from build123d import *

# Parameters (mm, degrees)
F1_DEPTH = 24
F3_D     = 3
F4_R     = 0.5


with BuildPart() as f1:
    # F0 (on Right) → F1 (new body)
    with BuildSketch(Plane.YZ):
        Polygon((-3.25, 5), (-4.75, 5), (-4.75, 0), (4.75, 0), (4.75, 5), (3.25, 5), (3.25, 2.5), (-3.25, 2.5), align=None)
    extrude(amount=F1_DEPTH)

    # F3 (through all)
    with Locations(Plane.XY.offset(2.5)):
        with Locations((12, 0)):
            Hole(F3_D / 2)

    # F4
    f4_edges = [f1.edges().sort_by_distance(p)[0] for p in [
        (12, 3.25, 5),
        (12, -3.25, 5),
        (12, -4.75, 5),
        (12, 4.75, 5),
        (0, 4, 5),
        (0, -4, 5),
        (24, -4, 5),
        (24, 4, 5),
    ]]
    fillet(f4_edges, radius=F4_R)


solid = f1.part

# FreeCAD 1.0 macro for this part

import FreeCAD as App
import Part
import Sketcher

V = App.Vector


def edges_at(feature, points):
    """Names of the edges that pass closest to the given points."""
    edges = feature.Shape.Edges
    near = lambda p: min(range(len(edges)), key=lambda i: edges[i].distToShape(Part.Vertex(*p))[0])
    return sorted({f"Edge{near(p) + 1}" for p in points})


def add_polygon(sketch, points):
    """Adds a closed chain of lines whose ends are joined by coincident constraints."""
    first, n = sketch.GeometryCount, len(points)
    for a, b in zip(points, points[1:] + points[:1]):
        sketch.addGeometry(Part.LineSegment(App.Vector(*a, 0), App.Vector(*b, 0)), False)
    for i in range(n):
        sketch.addConstraint(Sketcher.Constraint("Coincident", first + i, 2, first + (i + 1) % n, 1))

doc = App.newDocument("Part")
params = doc.addObject("Spreadsheet::Sheet", "Params")
for row, (alias, value) in enumerate([
    ("sketch1_height", "5 mm"),
    ("sketch1_width", "1.5 mm"),
    ("sketch1_width2", "9.5 mm"),
    ("sketch1_height2", "2.5 mm"),
    ("pad1_length", "24 mm"),
    ("sketch2_diameter", "3 mm"),
    ("hole_diameter", "3 mm"),
    ("fillet_radius", "0.5 mm"),
], start=1):
    params.set(f"A{row}", alias)
    params.set(f"B{row}", "=" + value)
    params.setAlias(f"B{row}", alias)

body = doc.addObject("PartDesign::Body", "Body")

# Sketch on YZ plane
sketch1 = doc.addObject("Sketcher::SketchObject", "Sketch")
body.addObject(sketch1)
sketch1.AttachmentSupport = (doc.YZ_Plane, [""])
sketch1.MapMode = "FlatFace"
add_polygon(sketch1, [(-3.2, 5), (-4.8, 5), (-4.8, 0), (4.8, 0), (4.8, 5), (3.2, 5), (3.2, 2.5), (-3.2, 2.5)])  # lines 0-7
sketch1.addConstraint(Sketcher.Constraint("Horizontal", 0))
sketch1.addConstraint(Sketcher.Constraint("Vertical", 1))
sketch1.addConstraint(Sketcher.Constraint("Horizontal", 2))
sketch1.addConstraint(Sketcher.Constraint("Vertical", 3))
sketch1.addConstraint(Sketcher.Constraint("Horizontal", 4))
sketch1.addConstraint(Sketcher.Constraint("Vertical", 5))
sketch1.addConstraint(Sketcher.Constraint("Horizontal", 6))
sketch1.addConstraint(Sketcher.Constraint("Vertical", 7))
sketch1.addConstraint(Sketcher.Constraint("Symmetric", 1, 2, 2, 2, -1, 1))
sketch1.addConstraint(Sketcher.Constraint("Symmetric", 4, 2, 7, 2, -2))
sketch1.addConstraint(Sketcher.Constraint("DistanceY", 1, 2, 1, 1, 5.0))
sketch1.addConstraint(Sketcher.Constraint("DistanceX", 0, 2, 0, 1, 1.5))
sketch1.addConstraint(Sketcher.Constraint("DistanceX", 2, 1, 2, 2, 9.5))
sketch1.addConstraint(Sketcher.Constraint("DistanceY", 5, 2, 5, 1, 2.5))
sketch1.setExpression("Constraints[18]", "Params.sketch1_height")
sketch1.setExpression("Constraints[19]", "Params.sketch1_width")
sketch1.setExpression("Constraints[20]", "Params.sketch1_width2")
sketch1.setExpression("Constraints[21]", "Params.sketch1_height2")
pad1 = doc.addObject("PartDesign::Pad", "Pad")
body.addObject(pad1)
pad1.Profile = sketch1
pad1.setExpression("Length", "Params.pad1_length")

# Sketch on XY plane
sketch2 = doc.addObject("Sketcher::SketchObject", "Sketch001")
body.addObject(sketch2)
sketch2.AttachmentSupport = (doc.XY_Plane, [""])
sketch2.MapMode = "FlatFace"
sketch2.AttachmentOffset = App.Placement(V(0, 0, 2.5), App.Rotation())
sketch2.addGeometry(Part.Circle(V(12, 0, 0), V(0, 0, 1), 1.5), False)
sketch2.addConstraint(Sketcher.Constraint("PointOnObject", 0, 3, -1))
sketch2.addConstraint(Sketcher.Constraint("Diameter", 0, 3.0))
sketch2.addConstraint(Sketcher.Constraint("DistanceX", -1, 1, 0, 3, 12.0))
sketch2.setExpression("Constraints[1]", "Params.sketch2_diameter")
doc.recompute()
hole = doc.addObject("PartDesign::Hole", "Hole")
body.addObject(hole)
hole.Profile = sketch2
hole.ThreadType = "None"
hole.setExpression("Diameter", "Params.hole_diameter")
hole.DepthType = "ThroughAll"
doc.recompute()

fillet = doc.addObject("PartDesign::Fillet", "Fillet")
body.addObject(fillet)
fillet.Base = (hole, edges_at(hole, [
    (12, 3.25, 5),
    (12, -3.25, 5),
    (12, -4.75, 5),
    (12, 4.75, 5),
    (0, 4, 5),
    (0, -4, 5),
    (24, -4, 5),
    (24, 4, 5),
]))
fillet.setExpression("Radius", "Params.fillet_radius")

doc.recompute()
